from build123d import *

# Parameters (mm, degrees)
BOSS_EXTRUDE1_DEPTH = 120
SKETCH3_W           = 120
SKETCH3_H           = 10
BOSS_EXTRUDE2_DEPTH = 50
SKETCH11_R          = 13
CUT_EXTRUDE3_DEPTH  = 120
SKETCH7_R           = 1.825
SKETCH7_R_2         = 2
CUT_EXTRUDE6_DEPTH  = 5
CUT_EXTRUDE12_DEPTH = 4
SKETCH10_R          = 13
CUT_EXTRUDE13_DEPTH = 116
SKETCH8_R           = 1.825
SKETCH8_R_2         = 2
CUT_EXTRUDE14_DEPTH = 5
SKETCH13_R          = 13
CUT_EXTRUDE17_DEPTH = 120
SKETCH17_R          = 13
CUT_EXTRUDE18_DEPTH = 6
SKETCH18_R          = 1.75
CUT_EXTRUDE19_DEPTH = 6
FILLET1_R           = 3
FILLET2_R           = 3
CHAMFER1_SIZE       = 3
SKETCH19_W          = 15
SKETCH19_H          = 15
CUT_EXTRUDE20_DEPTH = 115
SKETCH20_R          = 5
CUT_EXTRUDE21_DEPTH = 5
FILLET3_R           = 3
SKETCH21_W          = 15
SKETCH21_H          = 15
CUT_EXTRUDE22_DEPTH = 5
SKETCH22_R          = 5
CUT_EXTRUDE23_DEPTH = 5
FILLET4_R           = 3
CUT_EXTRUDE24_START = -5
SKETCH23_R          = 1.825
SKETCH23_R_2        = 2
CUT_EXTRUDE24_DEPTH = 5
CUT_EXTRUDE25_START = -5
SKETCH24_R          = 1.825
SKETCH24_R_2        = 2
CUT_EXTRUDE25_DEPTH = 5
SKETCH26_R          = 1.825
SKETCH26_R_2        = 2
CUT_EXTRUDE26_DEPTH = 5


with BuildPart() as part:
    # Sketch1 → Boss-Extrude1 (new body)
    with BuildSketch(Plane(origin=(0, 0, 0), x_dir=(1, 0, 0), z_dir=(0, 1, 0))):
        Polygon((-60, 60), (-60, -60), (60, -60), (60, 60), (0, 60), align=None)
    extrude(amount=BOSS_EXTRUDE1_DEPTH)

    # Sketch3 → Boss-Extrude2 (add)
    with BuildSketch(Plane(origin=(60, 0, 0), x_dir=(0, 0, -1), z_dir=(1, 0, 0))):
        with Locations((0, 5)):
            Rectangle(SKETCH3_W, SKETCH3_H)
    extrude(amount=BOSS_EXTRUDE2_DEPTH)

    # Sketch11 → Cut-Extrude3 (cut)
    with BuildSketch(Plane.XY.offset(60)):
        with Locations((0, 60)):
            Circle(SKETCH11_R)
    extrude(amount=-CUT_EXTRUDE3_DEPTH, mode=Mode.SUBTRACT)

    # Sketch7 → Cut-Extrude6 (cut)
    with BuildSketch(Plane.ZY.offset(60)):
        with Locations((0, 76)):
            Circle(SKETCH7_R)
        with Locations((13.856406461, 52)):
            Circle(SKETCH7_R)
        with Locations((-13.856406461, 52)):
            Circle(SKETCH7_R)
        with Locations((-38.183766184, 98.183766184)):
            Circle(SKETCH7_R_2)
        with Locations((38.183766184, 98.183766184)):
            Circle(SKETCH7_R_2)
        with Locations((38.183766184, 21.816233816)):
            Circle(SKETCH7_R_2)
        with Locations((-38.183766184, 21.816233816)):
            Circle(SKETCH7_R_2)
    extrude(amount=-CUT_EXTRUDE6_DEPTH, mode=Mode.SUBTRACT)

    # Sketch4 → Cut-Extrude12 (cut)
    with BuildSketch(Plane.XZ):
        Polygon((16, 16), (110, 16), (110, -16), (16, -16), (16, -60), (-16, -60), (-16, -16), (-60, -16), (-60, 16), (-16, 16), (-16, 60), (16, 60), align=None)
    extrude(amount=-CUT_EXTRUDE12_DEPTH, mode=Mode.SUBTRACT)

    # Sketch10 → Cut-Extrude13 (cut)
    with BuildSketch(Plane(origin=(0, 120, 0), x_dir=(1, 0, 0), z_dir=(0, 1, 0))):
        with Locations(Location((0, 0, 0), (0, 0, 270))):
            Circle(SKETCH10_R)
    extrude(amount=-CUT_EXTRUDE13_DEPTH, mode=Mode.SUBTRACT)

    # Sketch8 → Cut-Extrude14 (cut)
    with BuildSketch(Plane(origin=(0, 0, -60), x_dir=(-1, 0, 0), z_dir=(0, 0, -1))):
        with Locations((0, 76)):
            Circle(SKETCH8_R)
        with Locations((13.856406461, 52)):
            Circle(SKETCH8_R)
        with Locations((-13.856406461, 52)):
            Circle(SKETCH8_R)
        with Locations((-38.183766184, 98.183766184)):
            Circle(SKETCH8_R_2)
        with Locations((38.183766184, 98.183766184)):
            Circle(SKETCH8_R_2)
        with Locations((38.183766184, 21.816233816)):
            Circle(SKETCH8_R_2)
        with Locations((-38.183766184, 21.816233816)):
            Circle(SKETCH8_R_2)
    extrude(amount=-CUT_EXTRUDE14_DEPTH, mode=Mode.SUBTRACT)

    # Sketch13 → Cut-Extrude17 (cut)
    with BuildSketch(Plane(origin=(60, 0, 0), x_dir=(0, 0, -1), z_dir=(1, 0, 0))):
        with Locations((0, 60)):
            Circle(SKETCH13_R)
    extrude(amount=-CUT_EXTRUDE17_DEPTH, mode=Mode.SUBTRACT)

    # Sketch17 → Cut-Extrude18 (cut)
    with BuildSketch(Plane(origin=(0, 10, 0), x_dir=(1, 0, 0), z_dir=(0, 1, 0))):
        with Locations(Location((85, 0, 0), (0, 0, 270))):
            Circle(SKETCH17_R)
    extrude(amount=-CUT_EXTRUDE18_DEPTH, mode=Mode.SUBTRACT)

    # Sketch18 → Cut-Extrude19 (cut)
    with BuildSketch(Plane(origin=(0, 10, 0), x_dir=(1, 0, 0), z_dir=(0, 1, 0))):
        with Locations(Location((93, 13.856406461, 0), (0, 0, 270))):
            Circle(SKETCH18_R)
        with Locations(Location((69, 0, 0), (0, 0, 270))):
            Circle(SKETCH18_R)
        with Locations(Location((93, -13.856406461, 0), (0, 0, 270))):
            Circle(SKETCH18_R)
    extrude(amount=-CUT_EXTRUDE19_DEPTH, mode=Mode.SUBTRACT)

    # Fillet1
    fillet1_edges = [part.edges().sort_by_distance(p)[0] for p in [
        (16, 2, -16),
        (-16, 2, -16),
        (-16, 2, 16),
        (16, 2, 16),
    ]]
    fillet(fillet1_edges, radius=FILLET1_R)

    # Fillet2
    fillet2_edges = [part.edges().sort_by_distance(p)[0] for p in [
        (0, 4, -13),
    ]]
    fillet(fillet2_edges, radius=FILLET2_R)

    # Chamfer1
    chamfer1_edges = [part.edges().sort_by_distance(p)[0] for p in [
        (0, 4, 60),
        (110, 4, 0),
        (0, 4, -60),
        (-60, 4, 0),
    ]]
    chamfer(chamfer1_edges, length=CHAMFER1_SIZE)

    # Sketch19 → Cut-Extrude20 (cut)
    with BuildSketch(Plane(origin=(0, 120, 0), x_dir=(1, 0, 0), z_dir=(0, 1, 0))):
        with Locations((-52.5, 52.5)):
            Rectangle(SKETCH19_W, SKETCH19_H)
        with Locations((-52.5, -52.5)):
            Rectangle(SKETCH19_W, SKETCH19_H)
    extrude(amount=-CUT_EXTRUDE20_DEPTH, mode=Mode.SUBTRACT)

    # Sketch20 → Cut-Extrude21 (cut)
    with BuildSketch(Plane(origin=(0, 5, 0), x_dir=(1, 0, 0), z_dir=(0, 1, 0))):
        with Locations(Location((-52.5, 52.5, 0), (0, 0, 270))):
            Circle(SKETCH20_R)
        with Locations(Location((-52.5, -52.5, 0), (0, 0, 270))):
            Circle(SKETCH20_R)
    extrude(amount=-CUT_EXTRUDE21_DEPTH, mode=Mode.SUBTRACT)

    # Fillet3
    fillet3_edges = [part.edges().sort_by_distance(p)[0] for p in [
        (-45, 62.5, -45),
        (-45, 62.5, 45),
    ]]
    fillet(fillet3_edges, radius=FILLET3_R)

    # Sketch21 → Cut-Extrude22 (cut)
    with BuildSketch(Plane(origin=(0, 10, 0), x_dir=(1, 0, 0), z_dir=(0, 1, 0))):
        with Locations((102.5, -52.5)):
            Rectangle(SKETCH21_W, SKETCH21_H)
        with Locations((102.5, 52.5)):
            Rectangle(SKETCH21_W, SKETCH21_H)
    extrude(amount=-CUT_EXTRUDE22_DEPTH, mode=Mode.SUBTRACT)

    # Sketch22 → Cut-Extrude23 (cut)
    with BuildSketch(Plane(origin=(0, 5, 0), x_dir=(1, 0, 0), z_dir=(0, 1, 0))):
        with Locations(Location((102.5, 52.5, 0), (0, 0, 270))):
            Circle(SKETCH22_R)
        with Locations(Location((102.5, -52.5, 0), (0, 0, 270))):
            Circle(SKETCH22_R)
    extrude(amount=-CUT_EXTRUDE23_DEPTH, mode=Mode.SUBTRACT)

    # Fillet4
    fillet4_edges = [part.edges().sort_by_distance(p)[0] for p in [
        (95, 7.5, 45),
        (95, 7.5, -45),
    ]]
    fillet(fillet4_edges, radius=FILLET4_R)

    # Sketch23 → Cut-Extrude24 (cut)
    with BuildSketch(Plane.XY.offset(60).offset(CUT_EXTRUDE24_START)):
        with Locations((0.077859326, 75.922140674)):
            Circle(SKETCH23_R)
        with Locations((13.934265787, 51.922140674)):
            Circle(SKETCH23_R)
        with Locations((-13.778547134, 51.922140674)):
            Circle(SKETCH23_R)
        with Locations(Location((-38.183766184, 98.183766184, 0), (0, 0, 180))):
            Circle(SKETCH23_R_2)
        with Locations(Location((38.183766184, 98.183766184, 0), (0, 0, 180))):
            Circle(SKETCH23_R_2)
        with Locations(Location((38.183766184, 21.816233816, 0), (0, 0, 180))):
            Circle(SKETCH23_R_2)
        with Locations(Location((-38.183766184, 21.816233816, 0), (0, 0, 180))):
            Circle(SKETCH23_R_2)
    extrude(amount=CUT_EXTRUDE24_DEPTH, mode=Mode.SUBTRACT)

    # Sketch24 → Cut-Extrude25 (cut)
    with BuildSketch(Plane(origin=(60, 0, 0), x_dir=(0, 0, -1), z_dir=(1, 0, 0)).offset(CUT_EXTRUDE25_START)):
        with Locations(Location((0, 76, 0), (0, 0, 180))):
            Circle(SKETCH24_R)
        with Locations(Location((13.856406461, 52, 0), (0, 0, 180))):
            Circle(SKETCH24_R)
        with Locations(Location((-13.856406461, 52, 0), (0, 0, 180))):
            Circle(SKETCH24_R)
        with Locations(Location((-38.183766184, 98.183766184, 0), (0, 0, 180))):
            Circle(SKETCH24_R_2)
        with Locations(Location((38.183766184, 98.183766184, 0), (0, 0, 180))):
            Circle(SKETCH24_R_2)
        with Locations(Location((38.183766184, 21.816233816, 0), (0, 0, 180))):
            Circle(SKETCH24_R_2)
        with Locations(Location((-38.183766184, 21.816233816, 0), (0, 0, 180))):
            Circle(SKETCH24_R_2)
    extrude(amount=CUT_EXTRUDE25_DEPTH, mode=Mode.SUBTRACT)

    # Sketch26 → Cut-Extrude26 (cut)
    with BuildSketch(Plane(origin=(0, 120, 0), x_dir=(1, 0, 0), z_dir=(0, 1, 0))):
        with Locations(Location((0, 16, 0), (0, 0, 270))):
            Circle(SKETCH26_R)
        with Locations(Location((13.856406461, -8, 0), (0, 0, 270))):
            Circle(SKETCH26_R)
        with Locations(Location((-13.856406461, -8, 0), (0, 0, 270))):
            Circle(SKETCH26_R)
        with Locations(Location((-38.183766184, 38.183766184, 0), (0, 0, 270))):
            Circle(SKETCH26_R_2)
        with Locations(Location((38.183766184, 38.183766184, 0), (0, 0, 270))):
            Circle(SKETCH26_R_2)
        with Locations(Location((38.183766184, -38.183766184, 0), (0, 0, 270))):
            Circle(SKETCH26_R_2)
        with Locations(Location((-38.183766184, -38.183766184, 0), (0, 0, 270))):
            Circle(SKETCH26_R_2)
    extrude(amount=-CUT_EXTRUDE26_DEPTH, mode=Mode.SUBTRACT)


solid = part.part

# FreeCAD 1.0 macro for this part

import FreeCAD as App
import Part
import Sketcher


def edges_at(feature, points):
    """Names of the edges that pass closest to the given points."""
    edges = feature.Shape.Edges
    near = lambda p: min(range(len(edges)), key=lambda i: edges[i].distToShape(Part.Vertex(*p))[0])
    return sorted({f"Edge{near(p) + 1}" for p in points})


def add_polygon(sketch, points):
    """Adds a closed chain of lines whose ends are joined by coincident constraints."""
    first, n = sketch.GeometryCount, len(points)
    for a, b in zip(points, points[1:] + points[:1]):
        sketch.addGeometry(Part.LineSegment(App.Vector(*a, 0), App.Vector(*b, 0)), False)
    for i in range(n):
        sketch.addConstraint(Sketcher.Constraint("Coincident", first + i, 2, first + (i + 1) % n, 1))

doc = App.newDocument("Part")
body = doc.addObject("PartDesign::Body", "Body")

sketch1 = doc.addObject("Sketcher::SketchObject", "Sketch")
body.addObject(sketch1)
sketch1.AttachmentSupport = (doc.XZ_Plane, [""])
sketch1.MapMode = "FlatFace"
add_polygon(sketch1, [(-60, -60), (-60, 60), (60, 60), (60, -60)])
sketch1.addConstraint(Sketcher.Constraint("Vertical", 0))
sketch1.addConstraint(Sketcher.Constraint("Horizontal", 1))
sketch1.addConstraint(Sketcher.Constraint("Vertical", 2))
sketch1.addConstraint(Sketcher.Constraint("Horizontal", 3))
sketch1.addConstraint(Sketcher.Constraint("Symmetric", 0, 2, 2, 2, -1, 1))
sketch1.addConstraint(Sketcher.Constraint("Equal", 3, 0))
sketch1.addConstraint(Sketcher.Constraint("DistanceX", 1, 1, 1, 2, 120.0))
pad1 = doc.addObject("PartDesign::Pad", "Pad")
body.addObject(pad1)
pad1.Profile = sketch1
pad1.Length = 120
pad1.Reversed = True

sketch2 = doc.addObject("Sketcher::SketchObject", "Sketch001")
body.addObject(sketch2)
sketch2.AttachmentSupport = (doc.YZ_Plane, [""])
sketch2.MapMode = "FlatFace"
sketch2.AttachmentOffset = App.Placement(App.Vector(0, 0, 60), App.Rotation())
add_polygon(sketch2, [(10, 60), (0, 60), (0, -60), (10, -60)])
sketch2.addConstraint(Sketcher.Constraint("Horizontal", 0))
sketch2.addConstraint(Sketcher.Constraint("Vertical", 1))
sketch2.addConstraint(Sketcher.Constraint("Horizontal", 2))
sketch2.addConstraint(Sketcher.Constraint("Vertical", 3))
sketch2.addConstraint(Sketcher.Constraint("Symmetric", 0, 2, 1, 2, -1, 1))
sketch2.addConstraint(Sketcher.Constraint("DistanceX", 0, 2, 0, 1, 10.0))
sketch2.addConstraint(Sketcher.Constraint("DistanceY", 1, 2, 1, 1, 120.0))
pad2 = doc.addObject("PartDesign::Pad", "Pad001")
body.addObject(pad2)
pad2.Profile = sketch2
pad2.Length = 50

sketch3 = doc.addObject("Sketcher::SketchObject", "Sketch002")
body.addObject(sketch3)
sketch3.AttachmentSupport = (doc.XY_Plane, [""])
sketch3.MapMode = "FlatFace"
sketch3.AttachmentOffset = App.Placement(App.Vector(0, 0, 60), App.Rotation())
sketch3.addGeometry(Part.Circle(App.Vector(0, 60, 0), App.Vector(0, 0, 1), 13), False)
sketch3.addConstraint(Sketcher.Constraint("PointOnObject", 0, 3, -2))
sketch3.addConstraint(Sketcher.Constraint("Diameter", 0, 26.0))
sketch3.addConstraint(Sketcher.Constraint("DistanceY", -1, 1, 0, 3, 60.0))
pocket1 = doc.addObject("PartDesign::Pocket", "Pocket")
body.addObject(pocket1)
pocket1.Profile = sketch3
pocket1.Length = 120

sketch4 = doc.addObject("Sketcher::SketchObject", "Sketch003")
body.addObject(sketch4)
sketch4.AttachmentSupport = (doc.YZ_Plane, [""])
sketch4.MapMode = "FlatFace"
sketch4.AttachmentOffset = App.Placement(App.Vector(0, 0, -60), App.Rotation())
sketch4.addGeometry(Part.Circle(App.Vector(76, 0, 0), App.Vector(0, 0, 1), 1.8), False)
sketch4.addGeometry(Part.Circle(App.Vector(52, 13.9, 0), App.Vector(0, 0, 1), 1.8), False)
sketch4.addGeometry(Part.Circle(App.Vector(52, -13.9, 0), App.Vector(0, 0, 1), 1.8), False)
sketch4.addGeometry(Part.Circle(App.Vector(98.2, -38.2, 0), App.Vector(0, 0, 1), 2), False)
sketch4.addGeometry(Part.Circle(App.Vector(98.2, 38.2, 0), App.Vector(0, 0, 1), 2), False)
sketch4.addGeometry(Part.Circle(App.Vector(21.8, 38.2, 0), App.Vector(0, 0, 1), 2), False)
sketch4.addGeometry(Part.Circle(App.Vector(21.8, -38.2, 0), App.Vector(0, 0, 1), 2), False)
sketch4.addConstraint(Sketcher.Constraint("Equal", 0, 1))
sketch4.addConstraint(Sketcher.Constraint("Equal", 1, 2))
sketch4.addConstraint(Sketcher.Constraint("Equal", 3, 4))
sketch4.addConstraint(Sketcher.Constraint("Equal", 4, 5))
sketch4.addConstraint(Sketcher.Constraint("Equal", 5, 6))
sketch4.addConstraint(Sketcher.Constraint("Symmetric", 1, 3, 2, 3, -1))
sketch4.addConstraint(Sketcher.Constraint("Symmetric", 3, 3, 4, 3, -1))
sketch4.addConstraint(Sketcher.Constraint("Symmetric", 5, 3, 6, 3, -1))
sketch4.addConstraint(Sketcher.Constraint("PointOnObject", 0, 3, -1))
sketch4.addConstraint(Sketcher.Constraint("Horizontal", 4, 3, 5, 3))
sketch4.addConstraint(Sketcher.Constraint("Diameter", 3, 4.0))
sketch4.addConstraint(Sketcher.Constraint("Diameter", 0, 3.65))
sketch4.addConstraint(Sketcher.Constraint("DistanceX", -1, 1, 0, 3, 76.0))
sketch4.addConstraint(Sketcher.Constraint("DistanceX", -1, 1, 1, 3, 52.0))
sketch4.addConstraint(Sketcher.Constraint("DistanceY", 3, 3, 2, 3, 24.32736))
sketch4.addConstraint(Sketcher.Constraint("DistanceY", -1, 1, 1, 3, 13.856406))
sketch4.addConstraint(Sketcher.Constraint("DistanceX", -1, 1, 3, 3, 98.183766))
sketch4.addConstraint(Sketcher.Constraint("DistanceX", -1, 1, 5, 3, 21.816234))
pocket2 = doc.addObject("PartDesign::Pocket", "Pocket001")
body.addObject(pocket2)
pocket2.Profile = sketch4
pocket2.Length = 5
pocket2.Reversed = True

sketch5 = doc.addObject("Sketcher::SketchObject", "Sketch004")
body.addObject(sketch5)
sketch5.AttachmentSupport = (doc.XZ_Plane, [""])
sketch5.MapMode = "FlatFace"
add_polygon(sketch5, [(110, 16), (16, 16), (16, 60), (-16, 60), (-16, 16), (-60, 16), (-60, -16), (-16, -16), (-16, -60), (16, -60), (16, -16), (110, -16)])
sketch5.addConstraint(Sketcher.Constraint("Horizontal", 0))
sketch5.addConstraint(Sketcher.Constraint("Vertical", 1))
sketch5.addConstraint(Sketcher.Constraint("Horizontal", 2))
sketch5.addConstraint(Sketcher.Constraint("Vertical", 3))
sketch5.addConstraint(Sketcher.Constraint("Horizontal", 4))
sketch5.addConstraint(Sketcher.Constraint("Vertical", 5))
sketch5.addConstraint(Sketcher.Constraint("Horizontal", 6))
sketch5.addConstraint(Sketcher.Constraint("Vertical", 7))
sketch5.addConstraint(Sketcher.Constraint("Horizontal", 8))
sketch5.addConstraint(Sketcher.Constraint("Vertical", 9))
sketch5.addConstraint(Sketcher.Constraint("Horizontal", 10))
sketch5.addConstraint(Sketcher.Constraint("Vertical", 11))
sketch5.addConstraint(Sketcher.Constraint("Symmetric", 0, 2, 6, 2, -1, 1))
sketch5.addConstraint(Sketcher.Constraint("Symmetric", 2, 2, 8, 2, -1, 1))
sketch5.addConstraint(Sketcher.Constraint("Symmetric", 0, 2, 3, 2, -2))
sketch5.addConstraint(Sketcher.Constraint("Horizontal", 6, 2, 9, 2))
sketch5.addConstraint(Sketcher.Constraint("Equal", 6, 1))
sketch5.addConstraint(Sketcher.Constraint("Equal", 8, 5))
sketch5.addConstraint(Sketcher.Constraint("DistanceX", 0, 2, 0, 1, 94.0))
sketch5.addConstraint(Sketcher.Constraint("DistanceX", 2, 2, 2, 1, 32.0))
sketch5.addConstraint(Sketcher.Constraint("DistanceX", 4, 2, 4, 1, 44.0))
pocket3 = doc.addObject("PartDesign::Pocket", "Pocket002")
body.addObject(pocket3)
pocket3.Profile = sketch5
pocket3.Length = 4

sketch6 = doc.addObject("Sketcher::SketchObject", "Sketch005")
body.addObject(sketch6)
sketch6.AttachmentSupport = (doc.XZ_Plane, [""])
sketch6.MapMode = "FlatFace"
sketch6.AttachmentOffset = App.Placement(App.Vector(0, 0, -120), App.Rotation())
sketch6.addGeometry(Part.Circle(App.Vector(0, 0, 0), App.Vector(0, 0, 1), 13), False)
sketch6.addConstraint(Sketcher.Constraint("Coincident", 0, 3, -1, 1))
sketch6.addConstraint(Sketcher.Constraint("Diameter", 0, 26.0))
pocket4 = doc.addObject("PartDesign::Pocket", "Pocket003")
body.addObject(pocket4)
pocket4.Profile = sketch6
pocket4.Length = 116
pocket4.Reversed = True

sketch7 = doc.addObject("Sketcher::SketchObject", "Sketch006")
body.addObject(sketch7)
sketch7.AttachmentSupport = (doc.XY_Plane, [""])
sketch7.MapMode = "FlatFace"
sketch7.AttachmentOffset = App.Placement(App.Vector(0, 0, -60), App.Rotation())
sketch7.addGeometry(Part.Circle(App.Vector(0, 76, 0), App.Vector(0, 0, 1), 1.8), False)
sketch7.addGeometry(Part.Circle(App.Vector(-13.9, 52, 0), App.Vector(0, 0, 1), 1.8), False)
sketch7.addGeometry(Part.Circle(App.Vector(13.9, 52, 0), App.Vector(0, 0, 1), 1.8), False)
sketch7.addGeometry(Part.Circle(App.Vector(38.2, 98.2, 0), App.Vector(0, 0, 1), 2), False)
sketch7.addGeometry(Part.Circle(App.Vector(-38.2, 98.2, 0), App.Vector(0, 0, 1), 2), False)
sketch7.addGeometry(Part.Circle(App.Vector(-38.2, 21.8, 0), App.Vector(0, 0, 1), 2), False)
sketch7.addGeometry(Part.Circle(App.Vector(38.2, 21.8, 0), App.Vector(0, 0, 1), 2), False)
sketch7.addConstraint(Sketcher.Constraint("Equal", 0, 1))
sketch7.addConstraint(Sketcher.Constraint("Equal", 1, 2))
sketch7.addConstraint(Sketcher.Constraint("Equal", 3, 4))
sketch7.addConstraint(Sketcher.Constraint("Equal", 4, 5))
sketch7.addConstraint(Sketcher.Constraint("Equal", 5, 6))
sketch7.addConstraint(Sketcher.Constraint("Symmetric", 1, 3, 2, 3, -2))
sketch7.addConstraint(Sketcher.Constraint("Symmetric", 3, 3, 4, 3, -2))
sketch7.addConstraint(Sketcher.Constraint("Symmetric", 5, 3, 6, 3, -2))
sketch7.addConstraint(Sketcher.Constraint("PointOnObject", 0, 3, -2))
sketch7.addConstraint(Sketcher.Constraint("Vertical", 4, 3, 5, 3))
sketch7.addConstraint(Sketcher.Constraint("Diameter", 3, 4.0))
sketch7.addConstraint(Sketcher.Constraint("Diameter", 0, 3.65))
sketch7.addConstraint(Sketcher.Constraint("DistanceY", -1, 1, 0, 3, 76.0))
sketch7.addConstraint(Sketcher.Constraint("DistanceY", -1, 1, 1, 3, 52.0))
sketch7.addConstraint(Sketcher.Constraint("DistanceX", 2, 3, 3, 3, 24.32736))
sketch7.addConstraint(Sketcher.Constraint("DistanceX", 1, 3, -1, 1, 13.856406))
sketch7.addConstraint(Sketcher.Constraint("DistanceY", -1, 1, 3, 3, 98.183766))
sketch7.addConstraint(Sketcher.Constraint("DistanceY", -1, 1, 5, 3, 21.816234))
pocket5 = doc.addObject("PartDesign::Pocket", "Pocket004")
body.addObject(pocket5)
pocket5.Profile = sketch7
pocket5.Length = 5
pocket5.Reversed = True

sketch8 = doc.addObject("Sketcher::SketchObject", "Sketch007")
body.addObject(sketch8)
sketch8.AttachmentSupport = (doc.YZ_Plane, [""])
sketch8.MapMode = "FlatFace"
sketch8.AttachmentOffset = App.Placement(App.Vector(0, 0, 60), App.Rotation())
sketch8.addGeometry(Part.Circle(App.Vector(60, 0, 0), App.Vector(0, 0, 1), 13), False)
sketch8.addConstraint(Sketcher.Constraint("PointOnObject", 0, 3, -1))
sketch8.addConstraint(Sketcher.Constraint("Diameter", 0, 26.0))
sketch8.addConstraint(Sketcher.Constraint("DistanceX", -1, 1, 0, 3, 60.0))
pocket6 = doc.addObject("PartDesign::Pocket", "Pocket005")
body.addObject(pocket6)
pocket6.Profile = sketch8
pocket6.Length = 120

sketch9 = doc.addObject("Sketcher::SketchObject", "Sketch008")
body.addObject(sketch9)
sketch9.AttachmentSupport = (doc.XZ_Plane, [""])
sketch9.MapMode = "FlatFace"
sketch9.AttachmentOffset = App.Placement(App.Vector(0, 0, -10), App.Rotation())
sketch9.addGeometry(Part.Circle(App.Vector(85, 0, 0), App.Vector(0, 0, 1), 13), False)
sketch9.addConstraint(Sketcher.Constraint("PointOnObject", 0, 3, -1))
sketch9.addConstraint(Sketcher.Constraint("Diameter", 0, 26.0))
sketch9.addConstraint(Sketcher.Constraint("DistanceX", -1, 1, 0, 3, 85.0))
pocket7 = doc.addObject("PartDesign::Pocket", "Pocket006")
body.addObject(pocket7)
pocket7.Profile = sketch9
pocket7.Length = 6
pocket7.Reversed = True

sketch10 = doc.addObject("Sketcher::SketchObject", "Sketch009")
body.addObject(sketch10)
sketch10.AttachmentSupport = (doc.XZ_Plane, [""])
sketch10.MapMode = "FlatFace"
sketch10.AttachmentOffset = App.Placement(App.Vector(0, 0, -10), App.Rotation())
sketch10.addGeometry(Part.Circle(App.Vector(93, -13.9, 0), App.Vector(0, 0, 1), 1.8), False)
sketch10.addGeometry(Part.Circle(App.Vector(69, 0, 0), App.Vector(0, 0, 1), 1.8), False)
sketch10.addGeometry(Part.Circle(App.Vector(93, 13.9, 0), App.Vector(0, 0, 1), 1.8), False)
sketch10.addConstraint(Sketcher.Constraint("Equal", 0, 1))
sketch10.addConstraint(Sketcher.Constraint("Equal", 1, 2))
sketch10.addConstraint(Sketcher.Constraint("Symmetric", 0, 3, 2, 3, -1))
sketch10.addConstraint(Sketcher.Constraint("PointOnObject", 1, 3, -1))
sketch10.addConstraint(Sketcher.Constraint("Diameter", 0, 3.5))
sketch10.addConstraint(Sketcher.Constraint("DistanceX", -1, 1, 0, 3, 93.0))
sketch10.addConstraint(Sketcher.Constraint("DistanceX", -1, 1, 1, 3, 69.0))
sketch10.addConstraint(Sketcher.Constraint("DistanceY", 0, 3, -1, 1, 13.856406))
pocket8 = doc.addObject("PartDesign::Pocket", "Pocket007")
body.addObject(pocket8)
pocket8.Profile = sketch10
pocket8.Length = 6
pocket8.Reversed = True
doc.recompute()

fillet = doc.addObject("PartDesign::Fillet", "Fillet")
body.addObject(fillet)
fillet.Base = (pocket8, edges_at(pocket8, [
    (16, 2, -16),
    (-16, 2, -16),
    (-16, 2, 16),
    (16, 2, 16),
]))
fillet.Radius = 3
doc.recompute()

fillet2 = doc.addObject("PartDesign::Fillet", "Fillet001")
body.addObject(fillet2)
fillet2.Base = (fillet, edges_at(fillet, [(0, 4, -13)]))
fillet2.Radius = 3
doc.recompute()

chamfer = doc.addObject("PartDesign::Chamfer", "Chamfer")
body.addObject(chamfer)
chamfer.Base = (fillet2, edges_at(fillet2, [
    (0, 4, 60),
    (110, 4, 0),
    (0, 4, -60),
    (-60, 4, 0),
]))
chamfer.Size = 3

sketch11 = doc.addObject("Sketcher::SketchObject", "Sketch010")
body.addObject(sketch11)
sketch11.AttachmentSupport = (doc.XZ_Plane, [""])
sketch11.MapMode = "FlatFace"
sketch11.AttachmentOffset = App.Placement(App.Vector(0, 0, -120), App.Rotation())
add_polygon(sketch11, [(-60, -60), (-60, -45), (-45, -45), (-45, -60)])
add_polygon(sketch11, [(-60, 45), (-60, 60), (-45, 60), (-45, 45)])
sketch11.addConstraint(Sketcher.Constraint("Vertical", 0))
sketch11.addConstraint(Sketcher.Constraint("Horizontal", 1))
sketch11.addConstraint(Sketcher.Constraint("Vertical", 2))
sketch11.addConstraint(Sketcher.Constraint("Horizontal", 3))
sketch11.addConstraint(Sketcher.Constraint("Vertical", 4))
sketch11.addConstraint(Sketcher.Constraint("Horizontal", 5))
sketch11.addConstraint(Sketcher.Constraint("Vertical", 6))
sketch11.addConstraint(Sketcher.Constraint("Horizontal", 7))
sketch11.addConstraint(Sketcher.Constraint("Symmetric", 3, 2, 4, 2, -1))
sketch11.addConstraint(Sketcher.Constraint("Symmetric", 1, 2, 6, 2, -1))
sketch11.addConstraint(Sketcher.Constraint("Equal", 7, 0))
sketch11.addConstraint(Sketcher.Constraint("DistanceX", 1, 1, 1, 2, 15.0))
sketch11.addConstraint(Sketcher.Constraint("DistanceX", 0, 2, -1, 1, 60.0))
sketch11.addConstraint(Sketcher.Constraint("DistanceY", 0, 2, -1, 1, 45.0))
pocket9 = doc.addObject("PartDesign::Pocket", "Pocket008")
body.addObject(pocket9)
pocket9.Profile = sketch11
pocket9.Length = 115
pocket9.Reversed = True

sketch12 = doc.addObject("Sketcher::SketchObject", "Sketch011")
body.addObject(sketch12)
sketch12.AttachmentSupport = (doc.XZ_Plane, [""])
sketch12.MapMode = "FlatFace"
sketch12.AttachmentOffset = App.Placement(App.Vector(0, 0, -5), App.Rotation())
sketch12.addGeometry(Part.Circle(App.Vector(-52, -52, 0), App.Vector(0, 0, 1), 5), False)
sketch12.addGeometry(Part.Circle(App.Vector(-52, 52, 0), App.Vector(0, 0, 1), 5), False)
sketch12.addConstraint(Sketcher.Constraint("Equal", 0, 1))
sketch12.addConstraint(Sketcher.Constraint("Symmetric", 0, 3, 1, 3, -1))
sketch12.addConstraint(Sketcher.Constraint("Diameter", 0, 10.0))
sketch12.addConstraint(Sketcher.Constraint("DistanceY", 0, 3, 1, 3, 105.0))
sketch12.addConstraint(Sketcher.Constraint("DistanceX", 0, 3, -1, 1, 52.5))
pocket10 = doc.addObject("PartDesign::Pocket", "Pocket009")
body.addObject(pocket10)
pocket10.Profile = sketch12
pocket10.Length = 5
pocket10.Reversed = True
doc.recompute()

fillet3 = doc.addObject("PartDesign::Fillet", "Fillet002")
body.addObject(fillet3)
fillet3.Base = (pocket10, edges_at(pocket10, [(-45, 62.5, -45), (-45, 62.5, 45)]))
fillet3.Radius = 3

sketch13 = doc.addObject("Sketcher::SketchObject", "Sketch012")
body.addObject(sketch13)
sketch13.AttachmentSupport = (doc.XZ_Plane, [""])
sketch13.MapMode = "FlatFace"
sketch13.AttachmentOffset = App.Placement(App.Vector(0, 0, -10), App.Rotation())
add_polygon(sketch13, [(95, 45), (95, 60), (110, 60), (110, 45)])
add_polygon(sketch13, [(95, -60), (95, -45), (110, -45), (110, -60)])
sketch13.addConstraint(Sketcher.Constraint("Vertical", 0))
sketch13.addConstraint(Sketcher.Constraint("Horizontal", 1))
sketch13.addConstraint(Sketcher.Constraint("Vertical", 2))
sketch13.addConstraint(Sketcher.Constraint("Horizontal", 3))
sketch13.addConstraint(Sketcher.Constraint("Vertical", 4))
sketch13.addConstraint(Sketcher.Constraint("Horizontal", 5))
sketch13.addConstraint(Sketcher.Constraint("Vertical", 6))
sketch13.addConstraint(Sketcher.Constraint("Horizontal", 7))
sketch13.addConstraint(Sketcher.Constraint("Symmetric", 3, 2, 4, 2, -1))
sketch13.addConstraint(Sketcher.Constraint("Symmetric", 1, 2, 6, 2, -1))
sketch13.addConstraint(Sketcher.Constraint("Equal", 7, 0))
sketch13.addConstraint(Sketcher.Constraint("DistanceX", 1, 1, 1, 2, 15.0))
sketch13.addConstraint(Sketcher.Constraint("DistanceX", -1, 1, 0, 2, 95.0))
sketch13.addConstraint(Sketcher.Constraint("DistanceY", -1, 1, 0, 2, 60.0))
pocket11 = doc.addObject("PartDesign::Pocket", "Pocket010")
body.addObject(pocket11)
pocket11.Profile = sketch13
pocket11.Length = 5
pocket11.Reversed = True

sketch14 = doc.addObject("Sketcher::SketchObject", "Sketch013")
body.addObject(sketch14)
sketch14.AttachmentSupport = (doc.XZ_Plane, [""])
sketch14.MapMode = "FlatFace"
sketch14.AttachmentOffset = App.Placement(App.Vector(0, 0, -5), App.Rotation())
sketch14.addGeometry(Part.Circle(App.Vector(102, -52, 0), App.Vector(0, 0, 1), 5), False)
sketch14.addGeometry(Part.Circle(App.Vector(102, 52, 0), App.Vector(0, 0, 1), 5), False)
sketch14.addConstraint(Sketcher.Constraint("Equal", 0, 1))
sketch14.addConstraint(Sketcher.Constraint("Symmetric", 0, 3, 1, 3, -1))
sketch14.addConstraint(Sketcher.Constraint("Diameter", 0, 10.0))
sketch14.addConstraint(Sketcher.Constraint("DistanceY", 0, 3, 1, 3, 105.0))
sketch14.addConstraint(Sketcher.Constraint("DistanceX", -1, 1, 0, 3, 102.5))
pocket12 = doc.addObject("PartDesign::Pocket", "Pocket011")
body.addObject(pocket12)
pocket12.Profile = sketch14
pocket12.Length = 5
pocket12.Reversed = True
doc.recompute()

fillet4 = doc.addObject("PartDesign::Fillet", "Fillet003")
body.addObject(fillet4)
fillet4.Base = (pocket12, edges_at(pocket12, [(95, 7.5, 45), (95, 7.5, -45)]))
fillet4.Radius = 3

sketch15 = doc.addObject("Sketcher::SketchObject", "Sketch014")
body.addObject(sketch15)
sketch15.AttachmentSupport = (doc.XY_Plane, [""])
sketch15.MapMode = "FlatFace"
sketch15.AttachmentOffset = App.Placement(App.Vector(0, 0, 55), App.Rotation())
sketch15.addGeometry(Part.Circle(App.Vector(0.1, 75.9, 0), App.Vector(0, 0, 1), 1.8), False)
sketch15.addGeometry(Part.Circle(App.Vector(13.9, 51.9, 0), App.Vector(0, 0, 1), 1.8), False)
sketch15.addGeometry(Part.Circle(App.Vector(-13.8, 51.9, 0), App.Vector(0, 0, 1), 1.8), False)
sketch15.addGeometry(Part.Circle(App.Vector(-38.2, 98.2, 0), App.Vector(0, 0, 1), 2), False)
sketch15.addGeometry(Part.Circle(App.Vector(38.2, 98.2, 0), App.Vector(0, 0, 1), 2), False)
sketch15.addGeometry(Part.Circle(App.Vector(38.2, 21.8, 0), App.Vector(0, 0, 1), 2), False)
sketch15.addGeometry(Part.Circle(App.Vector(-38.2, 21.8, 0), App.Vector(0, 0, 1), 2), False)
sketch15.addConstraint(Sketcher.Constraint("Equal", 0, 1))
sketch15.addConstraint(Sketcher.Constraint("Equal", 1, 2))
sketch15.addConstraint(Sketcher.Constraint("Equal", 3, 4))
sketch15.addConstraint(Sketcher.Constraint("Equal", 4, 5))
sketch15.addConstraint(Sketcher.Constraint("Equal", 5, 6))
sketch15.addConstraint(Sketcher.Constraint("Symmetric", 3, 3, 4, 3, -2))
sketch15.addConstraint(Sketcher.Constraint("Symmetric", 5, 3, 6, 3, -2))
sketch15.addConstraint(Sketcher.Constraint("Horizontal", 1, 3, 2, 3))
sketch15.addConstraint(Sketcher.Constraint("Vertical", 4, 3, 5, 3))
sketch15.addConstraint(Sketcher.Constraint("Diameter", 3, 4.0))
sketch15.addConstraint(Sketcher.Constraint("Diameter", 0, 3.65))
sketch15.addConstraint(Sketcher.Constraint("DistanceY", 1, 3, 0, 3, 24.0))
sketch15.addConstraint(Sketcher.Constraint("DistanceX", 1, 3, 4, 3, 24.2495))
sketch15.addConstraint(Sketcher.Constraint("DistanceX", -1, 1, 0, 3, 0.077859))
sketch15.addConstraint(Sketcher.Constraint("DistanceY", -1, 1, 0, 3, 75.922141))
sketch15.addConstraint(Sketcher.Constraint("DistanceX", 3, 3, 2, 3, 24.405219))
sketch15.addConstraint(Sketcher.Constraint("DistanceX", 3, 3, 1, 3, 52.118032))
sketch15.addConstraint(Sketcher.Constraint("DistanceY", -1, 1, 3, 3, 98.183766))
sketch15.addConstraint(Sketcher.Constraint("DistanceY", -1, 1, 5, 3, 21.816234))
pocket13 = doc.addObject("PartDesign::Pocket", "Pocket012")
body.addObject(pocket13)
pocket13.Profile = sketch15
pocket13.Length = 5
pocket13.Reversed = True

sketch16 = doc.addObject("Sketcher::SketchObject", "Sketch015")
body.addObject(sketch16)
sketch16.AttachmentSupport = (doc.YZ_Plane, [""])
sketch16.MapMode = "FlatFace"
sketch16.AttachmentOffset = App.Placement(App.Vector(0, 0, 55), App.Rotation())
sketch16.addGeometry(Part.Circle(App.Vector(76, 0, 0), App.Vector(0, 0, 1), 1.8), False)
sketch16.addGeometry(Part.Circle(App.Vector(52, -13.9, 0), App.Vector(0, 0, 1), 1.8), False)
sketch16.addGeometry(Part.Circle(App.Vector(52, 13.9, 0), App.Vector(0, 0, 1), 1.8), False)
sketch16.addGeometry(Part.Circle(App.Vector(98.2, 38.2, 0), App.Vector(0, 0, 1), 2), False)
sketch16.addGeometry(Part.Circle(App.Vector(98.2, -38.2, 0), App.Vector(0, 0, 1), 2), False)
sketch16.addGeometry(Part.Circle(App.Vector(21.8, -38.2, 0), App.Vector(0, 0, 1), 2), False)
sketch16.addGeometry(Part.Circle(App.Vector(21.8, 38.2, 0), App.Vector(0, 0, 1), 2), False)
sketch16.addConstraint(Sketcher.Constraint("Equal", 0, 1))
sketch16.addConstraint(Sketcher.Constraint("Equal", 1, 2))
sketch16.addConstraint(Sketcher.Constraint("Equal", 3, 4))
sketch16.addConstraint(Sketcher.Constraint("Equal", 4, 5))
sketch16.addConstraint(Sketcher.Constraint("Equal", 5, 6))
sketch16.addConstraint(Sketcher.Constraint("Symmetric", 1, 3, 2, 3, -1))
sketch16.addConstraint(Sketcher.Constraint("Symmetric", 3, 3, 4, 3, -1))
sketch16.addConstraint(Sketcher.Constraint("Symmetric", 5, 3, 6, 3, -1))
sketch16.addConstraint(Sketcher.Constraint("PointOnObject", 0, 3, -1))
sketch16.addConstraint(Sketcher.Constraint("Horizontal", 4, 3, 5, 3))
sketch16.addConstraint(Sketcher.Constraint("Diameter", 3, 4.0))
sketch16.addConstraint(Sketcher.Constraint("Diameter", 0, 3.65))
sketch16.addConstraint(Sketcher.Constraint("DistanceX", -1, 1, 0, 3, 76.0))
sketch16.addConstraint(Sketcher.Constraint("DistanceX", -1, 1, 1, 3, 52.0))
sketch16.addConstraint(Sketcher.Constraint("DistanceY", 2, 3, 3, 3, 24.32736))
sketch16.addConstraint(Sketcher.Constraint("DistanceY", 1, 3, -1, 1, 13.856406))
sketch16.addConstraint(Sketcher.Constraint("DistanceX", -1, 1, 3, 3, 98.183766))
sketch16.addConstraint(Sketcher.Constraint("DistanceX", -1, 1, 5, 3, 21.816234))
pocket14 = doc.addObject("PartDesign::Pocket", "Pocket013")
body.addObject(pocket14)
pocket14.Profile = sketch16
pocket14.Length = 5
pocket14.Reversed = True

sketch17 = doc.addObject("Sketcher::SketchObject", "Sketch016")
body.addObject(sketch17)
sketch17.AttachmentSupport = (doc.XZ_Plane, [""])
sketch17.MapMode = "FlatFace"
sketch17.AttachmentOffset = App.Placement(App.Vector(0, 0, -120), App.Rotation())
sketch17.addGeometry(Part.Circle(App.Vector(0, -16, 0), App.Vector(0, 0, 1), 1.8), False)
sketch17.addGeometry(Part.Circle(App.Vector(13.9, 8, 0), App.Vector(0, 0, 1), 1.8), False)
sketch17.addGeometry(Part.Circle(App.Vector(-13.9, 8, 0), App.Vector(0, 0, 1), 1.8), False)
sketch17.addGeometry(Part.Circle(App.Vector(-38.2, -38.2, 0), App.Vector(0, 0, 1), 2), False)
sketch17.addGeometry(Part.Circle(App.Vector(38.2, -38.2, 0), App.Vector(0, 0, 1), 2), False)
sketch17.addGeometry(Part.Circle(App.Vector(38.2, 38.2, 0), App.Vector(0, 0, 1), 2), False)
sketch17.addGeometry(Part.Circle(App.Vector(-38.2, 38.2, 0), App.Vector(0, 0, 1), 2), False)
sketch17.addConstraint(Sketcher.Constraint("Equal", 0, 1))
sketch17.addConstraint(Sketcher.Constraint("Equal", 1, 2))
sketch17.addConstraint(Sketcher.Constraint("Equal", 3, 4))
sketch17.addConstraint(Sketcher.Constraint("Equal", 4, 5))
sketch17.addConstraint(Sketcher.Constraint("Equal", 5, 6))
sketch17.addConstraint(Sketcher.Constraint("Symmetric", 3, 3, 5, 3, -1, 1))
sketch17.addConstraint(Sketcher.Constraint("Symmetric", 4, 3, 6, 3, -1, 1))
sketch17.addConstraint(Sketcher.Constraint("Symmetric", 1, 3, 2, 3, -2))
sketch17.addConstraint(Sketcher.Constraint("Symmetric", 3, 3, 4, 3, -2))
sketch17.addConstraint(Sketcher.Constraint("PointOnObject", 0, 3, -2))
sketch17.addConstraint(Sketcher.Constraint("Diameter", 3, 4.0))
sketch17.addConstraint(Sketcher.Constraint("Diameter", 0, 3.65))
sketch17.addConstraint(Sketcher.Constraint("DistanceY", 0, 3, -1, 1, 16.0))
sketch17.addConstraint(Sketcher.Constraint("DistanceY", -1, 1, 1, 3, 8.0))
sketch17.addConstraint(Sketcher.Constraint("DistanceX", 3, 3, 2, 3, 24.32736))
sketch17.addConstraint(Sketcher.Constraint("DistanceX", -1, 1, 1, 3, 13.856406))
sketch17.addConstraint(Sketcher.Constraint("DistanceY", 3, 3, -1, 1, 38.183766))
pocket15 = doc.addObject("PartDesign::Pocket", "Pocket014")
body.addObject(pocket15)
pocket15.Profile = sketch17
pocket15.Length = 5
pocket15.Reversed = True

doc.recompute()
